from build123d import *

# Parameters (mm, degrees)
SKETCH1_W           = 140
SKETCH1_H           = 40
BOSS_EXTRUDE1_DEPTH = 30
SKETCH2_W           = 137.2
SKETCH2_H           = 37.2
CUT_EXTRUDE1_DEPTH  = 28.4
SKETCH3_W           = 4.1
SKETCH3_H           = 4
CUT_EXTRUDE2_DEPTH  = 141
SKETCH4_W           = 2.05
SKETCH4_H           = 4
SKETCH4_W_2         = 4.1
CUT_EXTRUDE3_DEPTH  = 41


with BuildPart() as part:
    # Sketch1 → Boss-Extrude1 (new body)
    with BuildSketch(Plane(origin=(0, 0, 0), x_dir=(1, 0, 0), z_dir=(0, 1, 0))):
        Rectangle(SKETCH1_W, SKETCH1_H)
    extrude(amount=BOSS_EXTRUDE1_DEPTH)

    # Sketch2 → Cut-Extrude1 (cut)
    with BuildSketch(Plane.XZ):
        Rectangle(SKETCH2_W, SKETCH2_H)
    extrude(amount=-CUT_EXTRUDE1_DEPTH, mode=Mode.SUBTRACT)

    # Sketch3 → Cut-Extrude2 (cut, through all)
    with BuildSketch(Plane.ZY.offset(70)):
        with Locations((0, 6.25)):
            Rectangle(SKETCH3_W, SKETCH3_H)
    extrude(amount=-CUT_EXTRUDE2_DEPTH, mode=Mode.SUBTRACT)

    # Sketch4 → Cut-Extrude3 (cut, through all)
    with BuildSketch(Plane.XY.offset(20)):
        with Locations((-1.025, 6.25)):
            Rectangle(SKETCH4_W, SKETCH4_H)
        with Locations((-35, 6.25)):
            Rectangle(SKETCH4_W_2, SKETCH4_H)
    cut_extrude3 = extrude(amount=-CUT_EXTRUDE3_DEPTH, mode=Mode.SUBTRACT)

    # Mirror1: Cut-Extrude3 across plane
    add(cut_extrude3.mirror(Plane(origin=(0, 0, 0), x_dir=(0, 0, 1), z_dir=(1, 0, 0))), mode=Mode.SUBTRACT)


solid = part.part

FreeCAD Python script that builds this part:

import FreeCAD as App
import Part
import Sketcher

V = App.Vector
Q = App.Units.Quantity

doc = App.newDocument("Part")
body = doc.addObject("PartDesign::Body", "Body")

# Sketch on XZ plane
sketch1 = body.newObject("Sketcher::SketchObject", "Sketch")
sketch1.AttachmentSupport = (doc.getObject("XZ_Plane"), [""])
sketch1.MapMode = "FlatFace"
sketch1.addGeometry(Part.LineSegment(V(-70, -20, 0), V(-70, 20, 0)), False)
sketch1.addGeometry(Part.LineSegment(V(-70, 20, 0), V(70, 20, 0)), False)
sketch1.addGeometry(Part.LineSegment(V(70, 20, 0), V(70, -20, 0)), False)
sketch1.addGeometry(Part.LineSegment(V(70, -20, 0), V(-70, -20, 0)), False)
sketch1.addConstraint(Sketcher.Constraint("Coincident", 0, 2, 1, 1))
sketch1.addConstraint(Sketcher.Constraint("Coincident", 1, 2, 2, 1))
sketch1.addConstraint(Sketcher.Constraint("Coincident", 2, 2, 3, 1))
sketch1.addConstraint(Sketcher.Constraint("Coincident", 3, 2, 0, 1))
sketch1.addConstraint(Sketcher.Constraint("Vertical", 0))
sketch1.addConstraint(Sketcher.Constraint("Horizontal", 1))
sketch1.addConstraint(Sketcher.Constraint("Vertical", 2))
sketch1.addConstraint(Sketcher.Constraint("Horizontal", 3))
sketch1.addConstraint(Sketcher.Constraint("Symmetric", 0, 2, 2, 2, -1, 1))
sketch1.addConstraint(Sketcher.Constraint("DistanceX", 1, 1, 1, 2, Q("140 mm")))
sketch1.addConstraint(Sketcher.Constraint("DistanceY", 0, 1, 0, 2, Q("40 mm")))
pad1 = body.newObject("PartDesign::Pad", "Pad")
pad1.Profile = sketch1
pad1.Length = 30
pad1.Reversed = True

# Sketch on XZ plane
sketch2 = body.newObject("Sketcher::SketchObject", "Sketch001")
sketch2.AttachmentSupport = (doc.getObject("XZ_Plane"), [""])
sketch2.MapMode = "FlatFace"
sketch2.addGeometry(Part.LineSegment(V(-69, 19, 0), V(-69, -19, 0)), False)
sketch2.addGeometry(Part.LineSegment(V(-69, -19, 0), V(69, -19, 0)), False)
sketch2.addGeometry(Part.LineSegment(V(69, -19, 0), V(69, 19, 0)), False)
sketch2.addGeometry(Part.LineSegment(V(69, 19, 0), V(-69, 19, 0)), False)
sketch2.addConstraint(Sketcher.Constraint("Coincident", 0, 2, 1, 1))
sketch2.addConstraint(Sketcher.Constraint("Coincident", 1, 2, 2, 1))
sketch2.addConstraint(Sketcher.Constraint("Coincident", 2, 2, 3, 1))
sketch2.addConstraint(Sketcher.Constraint("Coincident", 3, 2, 0, 1))
sketch2.addConstraint(Sketcher.Constraint("Vertical", 0))
sketch2.addConstraint(Sketcher.Constraint("Horizontal", 1))
sketch2.addConstraint(Sketcher.Constraint("Vertical", 2))
sketch2.addConstraint(Sketcher.Constraint("Horizontal", 3))
sketch2.addConstraint(Sketcher.Constraint("Symmetric", 0, 2, 2, 2, -1, 1))
sketch2.addConstraint(Sketcher.Constraint("DistanceX", 1, 1, 1, 2, Q("137.2 mm")))
sketch2.addConstraint(Sketcher.Constraint("DistanceY", 0, 2, 0, 1, Q("37.2 mm")))
pocket1 = body.newObject("PartDesign::Pocket", "Pocket")
pocket1.Profile = sketch2
pocket1.Length = 28.4

# Sketch on YZ plane
sketch3 = body.newObject("Sketcher::SketchObject", "Sketch002")
sketch3.AttachmentSupport = (doc.getObject("YZ_Plane"), [""])
sketch3.MapMode = "FlatFace"
sketch3.AttachmentOffset = App.Placement(V(0, 0, -70), App.Rotation())
sketch3.addGeometry(Part.LineSegment(V(8.2, -2, 0), V(4.2, -2, 0)), False)
sketch3.addGeometry(Part.LineSegment(V(4.2, -2, 0), V(4.2, 2, 0)), False)
sketch3.addGeometry(Part.LineSegment(V(4.2, 2, 0), V(8.2, 2, 0)), False)
sketch3.addGeometry(Part.LineSegment(V(8.2, 2, 0), V(8.2, -2, 0)), False)
sketch3.addConstraint(Sketcher.Constraint("Coincident", 0, 2, 1, 1))
sketch3.addConstraint(Sketcher.Constraint("Coincident", 1, 2, 2, 1))
sketch3.addConstraint(Sketcher.Constraint("Coincident", 2, 2, 3, 1))
sketch3.addConstraint(Sketcher.Constraint("Coincident", 3, 2, 0, 1))
sketch3.addConstraint(Sketcher.Constraint("Horizontal", 0))
sketch3.addConstraint(Sketcher.Constraint("Vertical", 1))
sketch3.addConstraint(Sketcher.Constraint("Horizontal", 2))
sketch3.addConstraint(Sketcher.Constraint("Vertical", 3))
sketch3.addConstraint(Sketcher.Constraint("DistanceX", 0, 2, 0, 1, Q("4 mm")))
sketch3.addConstraint(Sketcher.Constraint("DistanceY", 1, 1, 1, 2, Q("4.1 mm")))
sketch3.addConstraint(Sketcher.Constraint("DistanceX", -1, 1, 0, 2, Q("4.25 mm")))
sketch3.addConstraint(Sketcher.Constraint("DistanceY", 0, 2, -1, 1, Q("2.05 mm")))
pocket2 = body.newObject("PartDesign::Pocket", "Pocket001")
pocket2.Profile = sketch3
pocket2.Type = "ThroughAll"
pocket2.Reversed = True

# Sketch on XY plane
sketch4 = body.newObject("Sketcher::SketchObject", "Sketch003")
sketch4.AttachmentSupport = (doc.getObject("XY_Plane"), [""])
sketch4.MapMode = "FlatFace"
sketch4.AttachmentOffset = App.Placement(V(0, 0, 20), App.Rotation())
sketch4.addGeometry(Part.LineSegment(V(-2, 8.2, 0), V(-2, 4.2, 0)), False)
sketch4.addGeometry(Part.LineSegment(V(-2, 4.2, 0), V(0, 4.2, 0)), False)
sketch4.addGeometry(Part.LineSegment(V(0, 4.2, 0), V(0, 8.2, 0)), False)
sketch4.addGeometry(Part.LineSegment(V(0, 8.2, 0), V(-2, 8.2, 0)), False)
sketch4.addGeometry(Part.LineSegment(V(-37, 8.2, 0), V(-37, 4.2, 0)), False)
sketch4.addGeometry(Part.LineSegment(V(-37, 4.2, 0), V(-33, 4.2, 0)), False)
sketch4.addGeometry(Part.LineSegment(V(-33, 4.2, 0), V(-33, 8.2, 0)), False)
sketch4.addGeometry(Part.LineSegment(V(-33, 8.2, 0), V(-37, 8.2, 0)), False)
sketch4.addConstraint(Sketcher.Constraint("Coincident", 0, 2, 1, 1))
sketch4.addConstraint(Sketcher.Constraint("Coincident", 1, 2, 2, 1))
sketch4.addConstraint(Sketcher.Constraint("Coincident", 2, 2, 3, 1))
sketch4.addConstraint(Sketcher.Constraint("Coincident", 3, 2, 0, 1))
sketch4.addConstraint(Sketcher.Constraint("Coincident", 4, 2, 5, 1))
sketch4.addConstraint(Sketcher.Constraint("Coincident", 5, 2, 6, 1))
sketch4.addConstraint(Sketcher.Constraint("Coincident", 6, 2, 7, 1))
sketch4.addConstraint(Sketcher.Constraint("Coincident", 7, 2, 4, 1))
sketch4.addConstraint(Sketcher.Constraint("Vertical", 0))
sketch4.addConstraint(Sketcher.Constraint("Horizontal", 1))
sketch4.addConstraint(Sketcher.Constraint("Vertical", 2))
sketch4.addConstraint(Sketcher.Constraint("Horizontal", 3))
sketch4.addConstraint(Sketcher.Constraint("Vertical", 4))
sketch4.addConstraint(Sketcher.Constraint("Horizontal", 5))
sketch4.addConstraint(Sketcher.Constraint("Vertical", 6))
sketch4.addConstraint(Sketcher.Constraint("Horizontal", 7))
sketch4.addConstraint(Sketcher.Constraint("PointOnObject", 1, 2, -2))
sketch4.addConstraint(Sketcher.Constraint("Horizontal", 1, 2, 4, 2))
sketch4.addConstraint(Sketcher.Constraint("Horizontal", 3, 2, 6, 2))
sketch4.addConstraint(Sketcher.Constraint("DistanceY", 0, 2, 0, 1, Q("4 mm")))
sketch4.addConstraint(Sketcher.Constraint("DistanceX", 5, 1, 5, 2, Q("4.1 mm")))
sketch4.addConstraint(Sketcher.Constraint("DistanceX", 4, 2, 0, 2, Q("35 mm")))
sketch4.addConstraint(Sketcher.Constraint("DistanceX", 1, 1, 1, 2, Q("2.05 mm")))
sketch4.addConstraint(Sketcher.Constraint("DistanceY", -1, 1, 0, 2, Q("4.25 mm")))
pocket3 = body.newObject("PartDesign::Pocket", "Pocket002")
pocket3.Profile = sketch4
pocket3.Type = "ThroughAll"
doc.recompute()

mirrored = body.newObject("PartDesign::Mirrored", "Mirrored")
mirrored.Originals = [pocket3]
mirrored.MirrorPlane = (doc.getObject("YZ_Plane"), [""])
body.Tip = mirrored

doc.recompute()
